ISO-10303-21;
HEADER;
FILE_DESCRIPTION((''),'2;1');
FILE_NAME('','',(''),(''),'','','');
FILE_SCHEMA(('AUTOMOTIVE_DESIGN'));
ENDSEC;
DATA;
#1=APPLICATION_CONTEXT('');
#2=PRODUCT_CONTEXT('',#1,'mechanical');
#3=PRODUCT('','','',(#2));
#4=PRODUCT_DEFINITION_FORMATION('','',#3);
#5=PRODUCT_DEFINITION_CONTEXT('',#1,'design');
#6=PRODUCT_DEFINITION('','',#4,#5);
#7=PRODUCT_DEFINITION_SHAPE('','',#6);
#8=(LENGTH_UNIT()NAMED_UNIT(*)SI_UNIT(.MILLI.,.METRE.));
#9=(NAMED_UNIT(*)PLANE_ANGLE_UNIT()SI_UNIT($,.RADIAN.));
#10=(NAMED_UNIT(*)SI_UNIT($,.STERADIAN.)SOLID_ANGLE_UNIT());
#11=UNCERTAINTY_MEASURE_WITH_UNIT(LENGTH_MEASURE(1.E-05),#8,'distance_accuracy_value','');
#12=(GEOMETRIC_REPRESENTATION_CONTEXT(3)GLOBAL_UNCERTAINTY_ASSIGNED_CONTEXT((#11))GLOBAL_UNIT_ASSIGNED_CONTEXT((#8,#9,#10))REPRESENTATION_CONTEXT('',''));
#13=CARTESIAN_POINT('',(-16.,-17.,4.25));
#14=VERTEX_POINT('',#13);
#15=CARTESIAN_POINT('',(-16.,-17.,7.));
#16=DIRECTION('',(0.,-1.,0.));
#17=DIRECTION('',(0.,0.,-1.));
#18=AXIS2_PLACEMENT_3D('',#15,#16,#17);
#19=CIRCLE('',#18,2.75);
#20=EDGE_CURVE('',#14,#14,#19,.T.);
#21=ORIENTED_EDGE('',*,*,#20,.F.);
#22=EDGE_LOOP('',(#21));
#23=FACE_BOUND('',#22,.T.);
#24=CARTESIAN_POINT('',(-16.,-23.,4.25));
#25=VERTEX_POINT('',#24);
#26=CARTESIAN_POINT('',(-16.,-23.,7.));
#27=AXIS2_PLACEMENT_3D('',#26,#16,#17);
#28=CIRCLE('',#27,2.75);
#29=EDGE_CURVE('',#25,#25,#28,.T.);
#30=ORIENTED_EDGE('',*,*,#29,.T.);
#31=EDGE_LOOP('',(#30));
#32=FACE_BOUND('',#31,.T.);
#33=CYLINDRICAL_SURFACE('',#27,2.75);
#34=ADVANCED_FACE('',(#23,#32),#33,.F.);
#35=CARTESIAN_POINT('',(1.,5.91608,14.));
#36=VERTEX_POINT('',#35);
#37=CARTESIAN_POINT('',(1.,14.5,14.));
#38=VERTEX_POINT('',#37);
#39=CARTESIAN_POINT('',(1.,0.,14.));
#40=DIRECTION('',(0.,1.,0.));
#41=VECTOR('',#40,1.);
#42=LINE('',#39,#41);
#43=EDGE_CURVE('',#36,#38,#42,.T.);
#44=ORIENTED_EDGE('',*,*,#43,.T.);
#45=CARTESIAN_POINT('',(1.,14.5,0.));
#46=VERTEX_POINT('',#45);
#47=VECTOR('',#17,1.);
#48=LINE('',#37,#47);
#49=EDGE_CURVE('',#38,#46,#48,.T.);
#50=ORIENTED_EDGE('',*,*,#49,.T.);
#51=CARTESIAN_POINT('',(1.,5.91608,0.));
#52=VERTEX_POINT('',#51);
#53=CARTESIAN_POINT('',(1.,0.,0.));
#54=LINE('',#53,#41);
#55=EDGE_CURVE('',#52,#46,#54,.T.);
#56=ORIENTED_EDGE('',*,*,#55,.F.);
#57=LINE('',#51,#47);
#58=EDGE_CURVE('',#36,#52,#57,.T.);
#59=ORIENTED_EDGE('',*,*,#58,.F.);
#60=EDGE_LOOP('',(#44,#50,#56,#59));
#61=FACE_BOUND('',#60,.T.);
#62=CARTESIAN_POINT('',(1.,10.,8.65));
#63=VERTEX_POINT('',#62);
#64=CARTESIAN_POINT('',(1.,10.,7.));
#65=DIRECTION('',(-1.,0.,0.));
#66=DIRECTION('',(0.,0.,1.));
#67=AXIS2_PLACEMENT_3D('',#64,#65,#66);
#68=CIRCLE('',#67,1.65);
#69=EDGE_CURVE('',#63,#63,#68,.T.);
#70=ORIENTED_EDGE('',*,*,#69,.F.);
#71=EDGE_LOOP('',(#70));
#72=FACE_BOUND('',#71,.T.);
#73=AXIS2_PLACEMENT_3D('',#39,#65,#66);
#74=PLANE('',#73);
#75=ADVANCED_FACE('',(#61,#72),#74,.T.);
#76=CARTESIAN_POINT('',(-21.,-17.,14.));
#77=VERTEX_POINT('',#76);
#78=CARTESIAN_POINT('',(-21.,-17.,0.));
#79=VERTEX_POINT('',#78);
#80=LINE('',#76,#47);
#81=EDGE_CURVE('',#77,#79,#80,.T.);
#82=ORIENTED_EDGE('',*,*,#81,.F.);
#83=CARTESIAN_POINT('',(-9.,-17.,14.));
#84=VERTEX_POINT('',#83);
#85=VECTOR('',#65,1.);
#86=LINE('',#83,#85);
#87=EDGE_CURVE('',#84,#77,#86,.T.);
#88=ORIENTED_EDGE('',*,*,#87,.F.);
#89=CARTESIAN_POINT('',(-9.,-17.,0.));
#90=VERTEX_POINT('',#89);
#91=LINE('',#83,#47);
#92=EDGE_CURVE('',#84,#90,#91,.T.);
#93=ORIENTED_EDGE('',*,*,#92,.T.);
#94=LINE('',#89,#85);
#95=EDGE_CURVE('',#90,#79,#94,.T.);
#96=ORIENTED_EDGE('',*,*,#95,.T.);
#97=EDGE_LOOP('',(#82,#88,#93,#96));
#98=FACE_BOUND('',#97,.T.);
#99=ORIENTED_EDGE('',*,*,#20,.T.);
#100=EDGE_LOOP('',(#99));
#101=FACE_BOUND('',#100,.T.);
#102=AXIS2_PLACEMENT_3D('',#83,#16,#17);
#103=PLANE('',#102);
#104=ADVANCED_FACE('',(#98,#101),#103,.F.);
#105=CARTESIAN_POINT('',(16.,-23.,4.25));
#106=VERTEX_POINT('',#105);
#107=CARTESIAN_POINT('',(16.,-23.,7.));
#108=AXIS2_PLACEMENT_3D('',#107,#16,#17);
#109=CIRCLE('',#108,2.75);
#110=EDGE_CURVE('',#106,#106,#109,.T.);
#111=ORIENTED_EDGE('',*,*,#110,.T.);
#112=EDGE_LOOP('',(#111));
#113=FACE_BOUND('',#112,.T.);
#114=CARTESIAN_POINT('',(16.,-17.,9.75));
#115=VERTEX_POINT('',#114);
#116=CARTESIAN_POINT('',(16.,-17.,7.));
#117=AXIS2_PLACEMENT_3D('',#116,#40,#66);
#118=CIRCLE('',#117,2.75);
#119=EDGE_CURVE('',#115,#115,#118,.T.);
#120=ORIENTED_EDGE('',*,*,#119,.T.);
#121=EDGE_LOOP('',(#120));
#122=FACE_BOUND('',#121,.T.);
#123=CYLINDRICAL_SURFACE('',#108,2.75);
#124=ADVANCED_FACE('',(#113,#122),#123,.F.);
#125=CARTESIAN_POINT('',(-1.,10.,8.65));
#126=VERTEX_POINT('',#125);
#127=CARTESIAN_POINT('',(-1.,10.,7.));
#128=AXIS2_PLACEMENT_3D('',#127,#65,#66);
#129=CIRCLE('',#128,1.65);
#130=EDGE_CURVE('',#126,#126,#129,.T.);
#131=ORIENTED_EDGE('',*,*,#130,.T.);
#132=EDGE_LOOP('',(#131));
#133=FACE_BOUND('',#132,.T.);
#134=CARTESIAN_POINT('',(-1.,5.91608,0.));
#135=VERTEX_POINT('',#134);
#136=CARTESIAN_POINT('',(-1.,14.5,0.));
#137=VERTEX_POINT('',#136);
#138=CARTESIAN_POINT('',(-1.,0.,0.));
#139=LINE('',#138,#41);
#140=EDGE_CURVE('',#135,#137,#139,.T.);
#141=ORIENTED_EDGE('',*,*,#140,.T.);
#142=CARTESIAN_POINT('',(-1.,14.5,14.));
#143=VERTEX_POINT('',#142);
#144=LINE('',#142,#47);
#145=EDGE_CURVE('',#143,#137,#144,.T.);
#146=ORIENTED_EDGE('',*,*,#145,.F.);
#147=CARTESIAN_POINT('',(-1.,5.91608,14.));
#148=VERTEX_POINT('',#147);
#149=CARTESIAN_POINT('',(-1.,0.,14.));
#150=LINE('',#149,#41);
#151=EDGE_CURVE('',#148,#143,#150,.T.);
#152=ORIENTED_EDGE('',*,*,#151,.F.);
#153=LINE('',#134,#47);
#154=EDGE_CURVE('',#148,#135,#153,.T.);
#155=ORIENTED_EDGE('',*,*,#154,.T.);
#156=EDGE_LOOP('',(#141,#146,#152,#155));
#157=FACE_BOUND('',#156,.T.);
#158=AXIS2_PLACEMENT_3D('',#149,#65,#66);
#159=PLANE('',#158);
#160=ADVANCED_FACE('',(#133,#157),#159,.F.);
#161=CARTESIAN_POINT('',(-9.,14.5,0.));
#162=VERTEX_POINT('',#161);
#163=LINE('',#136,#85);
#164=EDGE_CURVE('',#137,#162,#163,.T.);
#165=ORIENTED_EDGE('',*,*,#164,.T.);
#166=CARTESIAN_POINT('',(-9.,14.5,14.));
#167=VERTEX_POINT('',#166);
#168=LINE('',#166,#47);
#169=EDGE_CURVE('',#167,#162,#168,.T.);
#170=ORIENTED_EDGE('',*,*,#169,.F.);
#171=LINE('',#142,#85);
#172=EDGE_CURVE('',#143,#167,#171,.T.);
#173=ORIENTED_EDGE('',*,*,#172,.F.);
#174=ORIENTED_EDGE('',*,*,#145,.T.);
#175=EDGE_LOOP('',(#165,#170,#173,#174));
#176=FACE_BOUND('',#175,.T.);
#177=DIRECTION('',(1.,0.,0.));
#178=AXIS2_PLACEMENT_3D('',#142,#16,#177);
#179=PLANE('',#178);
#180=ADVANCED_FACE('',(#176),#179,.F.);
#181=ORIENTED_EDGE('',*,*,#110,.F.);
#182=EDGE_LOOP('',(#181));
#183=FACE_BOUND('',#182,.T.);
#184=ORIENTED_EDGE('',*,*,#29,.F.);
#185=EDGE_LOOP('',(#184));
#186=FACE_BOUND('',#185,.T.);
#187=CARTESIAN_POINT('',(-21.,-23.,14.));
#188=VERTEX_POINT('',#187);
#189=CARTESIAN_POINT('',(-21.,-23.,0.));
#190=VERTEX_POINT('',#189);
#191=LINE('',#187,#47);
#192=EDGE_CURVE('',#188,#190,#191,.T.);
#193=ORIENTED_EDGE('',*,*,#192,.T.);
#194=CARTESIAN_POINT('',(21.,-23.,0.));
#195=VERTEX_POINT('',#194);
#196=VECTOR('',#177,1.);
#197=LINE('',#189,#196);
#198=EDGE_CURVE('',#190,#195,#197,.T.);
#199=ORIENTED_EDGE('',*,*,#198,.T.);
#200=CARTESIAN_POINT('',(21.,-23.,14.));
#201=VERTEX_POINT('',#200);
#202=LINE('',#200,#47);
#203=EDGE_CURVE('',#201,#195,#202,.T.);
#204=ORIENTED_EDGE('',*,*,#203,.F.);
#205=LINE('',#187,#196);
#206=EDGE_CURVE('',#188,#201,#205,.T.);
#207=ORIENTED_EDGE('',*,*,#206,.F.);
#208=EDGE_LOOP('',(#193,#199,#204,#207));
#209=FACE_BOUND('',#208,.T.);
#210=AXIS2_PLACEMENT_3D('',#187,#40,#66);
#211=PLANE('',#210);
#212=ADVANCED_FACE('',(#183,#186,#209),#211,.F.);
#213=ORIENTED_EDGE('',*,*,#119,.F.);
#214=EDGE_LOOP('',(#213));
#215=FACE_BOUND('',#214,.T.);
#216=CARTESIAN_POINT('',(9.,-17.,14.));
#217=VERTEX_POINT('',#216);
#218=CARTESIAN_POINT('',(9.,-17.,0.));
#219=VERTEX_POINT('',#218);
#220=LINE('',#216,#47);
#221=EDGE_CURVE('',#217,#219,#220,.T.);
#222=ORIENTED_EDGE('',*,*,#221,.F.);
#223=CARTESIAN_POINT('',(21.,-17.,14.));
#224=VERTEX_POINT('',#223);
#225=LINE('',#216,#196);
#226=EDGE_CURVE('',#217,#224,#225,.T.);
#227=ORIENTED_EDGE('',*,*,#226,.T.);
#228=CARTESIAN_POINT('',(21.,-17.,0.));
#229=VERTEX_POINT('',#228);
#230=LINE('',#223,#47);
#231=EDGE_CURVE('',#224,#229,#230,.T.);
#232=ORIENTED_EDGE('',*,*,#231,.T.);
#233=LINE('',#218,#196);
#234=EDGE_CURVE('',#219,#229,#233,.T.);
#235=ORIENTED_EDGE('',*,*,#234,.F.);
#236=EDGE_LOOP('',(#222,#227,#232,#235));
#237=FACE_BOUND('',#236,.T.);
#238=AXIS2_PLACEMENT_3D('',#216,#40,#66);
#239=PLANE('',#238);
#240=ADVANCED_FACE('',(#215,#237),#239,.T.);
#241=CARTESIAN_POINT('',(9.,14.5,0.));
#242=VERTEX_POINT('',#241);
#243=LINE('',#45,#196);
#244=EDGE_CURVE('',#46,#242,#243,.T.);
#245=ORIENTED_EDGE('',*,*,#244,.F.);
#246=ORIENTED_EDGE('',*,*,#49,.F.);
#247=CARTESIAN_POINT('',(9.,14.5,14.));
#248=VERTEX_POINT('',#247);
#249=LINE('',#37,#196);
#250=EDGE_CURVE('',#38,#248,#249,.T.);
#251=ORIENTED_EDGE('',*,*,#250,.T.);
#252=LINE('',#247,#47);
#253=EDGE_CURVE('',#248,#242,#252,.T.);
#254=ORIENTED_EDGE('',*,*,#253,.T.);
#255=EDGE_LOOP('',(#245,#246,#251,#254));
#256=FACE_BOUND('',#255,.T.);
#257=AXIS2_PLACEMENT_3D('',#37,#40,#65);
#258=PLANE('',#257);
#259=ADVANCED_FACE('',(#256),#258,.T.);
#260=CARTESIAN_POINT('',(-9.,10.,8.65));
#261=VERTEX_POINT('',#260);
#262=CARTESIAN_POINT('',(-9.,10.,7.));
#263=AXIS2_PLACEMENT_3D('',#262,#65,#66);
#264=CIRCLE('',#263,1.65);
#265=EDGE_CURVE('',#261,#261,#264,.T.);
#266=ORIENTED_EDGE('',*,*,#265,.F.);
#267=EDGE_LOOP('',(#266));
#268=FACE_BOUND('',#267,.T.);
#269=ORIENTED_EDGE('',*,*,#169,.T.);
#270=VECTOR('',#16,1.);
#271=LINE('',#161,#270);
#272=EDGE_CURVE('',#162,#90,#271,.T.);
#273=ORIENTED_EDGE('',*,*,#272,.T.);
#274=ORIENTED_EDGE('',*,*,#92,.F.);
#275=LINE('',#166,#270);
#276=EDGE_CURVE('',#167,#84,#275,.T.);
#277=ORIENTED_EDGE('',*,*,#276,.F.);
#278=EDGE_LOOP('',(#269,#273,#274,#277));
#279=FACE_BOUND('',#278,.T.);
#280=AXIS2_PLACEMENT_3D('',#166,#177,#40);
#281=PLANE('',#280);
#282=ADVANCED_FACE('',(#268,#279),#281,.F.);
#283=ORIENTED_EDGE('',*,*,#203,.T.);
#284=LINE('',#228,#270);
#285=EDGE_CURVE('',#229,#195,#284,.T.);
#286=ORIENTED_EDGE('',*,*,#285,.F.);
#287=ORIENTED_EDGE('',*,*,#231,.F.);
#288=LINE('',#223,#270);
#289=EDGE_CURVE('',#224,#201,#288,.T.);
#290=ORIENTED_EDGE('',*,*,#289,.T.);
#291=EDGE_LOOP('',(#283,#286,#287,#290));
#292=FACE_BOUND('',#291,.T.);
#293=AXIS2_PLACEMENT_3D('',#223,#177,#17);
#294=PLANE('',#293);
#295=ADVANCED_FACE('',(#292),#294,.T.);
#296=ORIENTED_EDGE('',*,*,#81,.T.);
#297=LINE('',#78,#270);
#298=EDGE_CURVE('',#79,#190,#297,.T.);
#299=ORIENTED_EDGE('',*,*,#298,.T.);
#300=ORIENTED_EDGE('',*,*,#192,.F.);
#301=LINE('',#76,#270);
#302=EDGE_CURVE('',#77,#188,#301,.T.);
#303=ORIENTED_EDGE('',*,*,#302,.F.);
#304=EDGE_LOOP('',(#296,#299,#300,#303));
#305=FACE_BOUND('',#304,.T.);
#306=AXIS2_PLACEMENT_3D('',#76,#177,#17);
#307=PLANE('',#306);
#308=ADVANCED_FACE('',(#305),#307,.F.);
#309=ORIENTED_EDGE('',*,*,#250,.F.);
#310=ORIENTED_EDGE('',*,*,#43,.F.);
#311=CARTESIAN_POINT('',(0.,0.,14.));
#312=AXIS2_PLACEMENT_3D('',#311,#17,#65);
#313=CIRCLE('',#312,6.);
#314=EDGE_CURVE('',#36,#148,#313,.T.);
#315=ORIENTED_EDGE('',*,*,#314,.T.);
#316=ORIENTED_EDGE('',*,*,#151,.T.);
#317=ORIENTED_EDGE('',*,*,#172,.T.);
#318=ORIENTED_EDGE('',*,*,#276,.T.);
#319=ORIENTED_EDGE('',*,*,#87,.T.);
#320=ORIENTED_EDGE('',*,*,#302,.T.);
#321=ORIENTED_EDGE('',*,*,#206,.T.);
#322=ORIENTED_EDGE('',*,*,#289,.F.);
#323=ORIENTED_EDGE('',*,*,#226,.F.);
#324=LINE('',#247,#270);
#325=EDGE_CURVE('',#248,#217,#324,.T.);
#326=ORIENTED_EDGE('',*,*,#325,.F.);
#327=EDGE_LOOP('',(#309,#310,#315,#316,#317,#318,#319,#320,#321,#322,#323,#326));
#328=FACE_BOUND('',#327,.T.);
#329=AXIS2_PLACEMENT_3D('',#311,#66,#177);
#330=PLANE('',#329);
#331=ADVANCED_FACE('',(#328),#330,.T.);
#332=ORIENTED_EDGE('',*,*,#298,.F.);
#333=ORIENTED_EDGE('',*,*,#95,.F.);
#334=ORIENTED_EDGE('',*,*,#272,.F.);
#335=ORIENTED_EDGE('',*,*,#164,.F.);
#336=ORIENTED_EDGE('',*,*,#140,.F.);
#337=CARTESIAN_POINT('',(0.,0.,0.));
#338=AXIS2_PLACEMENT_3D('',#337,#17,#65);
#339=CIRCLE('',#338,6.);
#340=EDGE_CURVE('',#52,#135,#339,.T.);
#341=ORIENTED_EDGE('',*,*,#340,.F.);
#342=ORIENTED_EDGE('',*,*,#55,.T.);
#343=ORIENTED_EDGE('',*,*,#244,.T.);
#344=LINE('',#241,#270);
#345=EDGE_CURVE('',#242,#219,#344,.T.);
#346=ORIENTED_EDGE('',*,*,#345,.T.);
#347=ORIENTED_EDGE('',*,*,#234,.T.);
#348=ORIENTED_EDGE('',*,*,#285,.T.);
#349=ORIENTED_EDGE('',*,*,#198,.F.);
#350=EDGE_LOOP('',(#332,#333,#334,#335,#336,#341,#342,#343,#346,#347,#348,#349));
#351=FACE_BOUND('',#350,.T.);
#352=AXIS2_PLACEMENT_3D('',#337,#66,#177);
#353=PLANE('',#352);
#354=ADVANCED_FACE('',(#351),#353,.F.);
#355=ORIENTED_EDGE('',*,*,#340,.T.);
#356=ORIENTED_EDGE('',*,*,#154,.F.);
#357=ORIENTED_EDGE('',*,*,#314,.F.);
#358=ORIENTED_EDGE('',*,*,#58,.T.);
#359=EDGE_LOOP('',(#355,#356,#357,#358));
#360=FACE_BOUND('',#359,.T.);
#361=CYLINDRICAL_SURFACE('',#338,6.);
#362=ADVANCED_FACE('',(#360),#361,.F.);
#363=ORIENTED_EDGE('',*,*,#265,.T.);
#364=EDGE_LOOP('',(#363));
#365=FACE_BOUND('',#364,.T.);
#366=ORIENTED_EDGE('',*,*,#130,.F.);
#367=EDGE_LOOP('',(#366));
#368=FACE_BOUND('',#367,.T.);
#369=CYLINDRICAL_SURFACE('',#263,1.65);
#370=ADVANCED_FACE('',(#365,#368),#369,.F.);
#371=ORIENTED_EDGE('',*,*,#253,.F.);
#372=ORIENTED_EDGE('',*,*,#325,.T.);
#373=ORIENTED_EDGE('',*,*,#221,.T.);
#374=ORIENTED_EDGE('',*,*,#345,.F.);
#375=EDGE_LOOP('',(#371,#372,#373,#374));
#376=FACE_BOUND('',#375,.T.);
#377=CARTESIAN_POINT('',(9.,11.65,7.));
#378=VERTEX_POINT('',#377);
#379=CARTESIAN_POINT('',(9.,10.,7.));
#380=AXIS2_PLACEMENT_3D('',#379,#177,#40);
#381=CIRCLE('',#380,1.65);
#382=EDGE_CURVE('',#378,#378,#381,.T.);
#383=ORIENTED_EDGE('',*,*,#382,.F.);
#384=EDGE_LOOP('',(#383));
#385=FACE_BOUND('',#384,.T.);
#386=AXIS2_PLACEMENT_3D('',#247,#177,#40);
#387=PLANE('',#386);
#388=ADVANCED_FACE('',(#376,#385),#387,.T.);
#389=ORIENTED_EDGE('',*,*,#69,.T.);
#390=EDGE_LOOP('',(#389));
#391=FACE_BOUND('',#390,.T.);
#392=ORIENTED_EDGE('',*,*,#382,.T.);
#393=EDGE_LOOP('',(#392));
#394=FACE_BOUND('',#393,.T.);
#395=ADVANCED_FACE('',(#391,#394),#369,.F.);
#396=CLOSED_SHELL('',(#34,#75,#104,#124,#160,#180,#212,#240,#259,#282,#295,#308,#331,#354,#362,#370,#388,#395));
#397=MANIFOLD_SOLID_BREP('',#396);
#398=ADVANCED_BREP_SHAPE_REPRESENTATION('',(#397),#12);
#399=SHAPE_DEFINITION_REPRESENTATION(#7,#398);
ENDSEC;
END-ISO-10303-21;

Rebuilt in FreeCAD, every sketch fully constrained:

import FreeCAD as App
import Part
import Sketcher
Q = App.Units.Quantity

doc = App.newDocument("Part")
body = doc.addObject("PartDesign::Body", "Body")

# Sketch on XY plane
sketch1 = doc.addObject("Sketcher::SketchObject", "Sketch")
body.addObject(sketch1)
sketch1.AttachmentSupport = (doc.XY_Plane, [""])
sketch1.MapMode = "FlatFace"
sketch1.addGeometry([
    Part.LineSegment(App.Vector(-1, 0, 0), App.Vector(-1, 14.5, 0)),  # 0
    Part.LineSegment(App.Vector(-1, 14.5, 0), App.Vector(-9, 14.5, 0)),  # 1
    Part.LineSegment(App.Vector(-9, 14.5, 0), App.Vector(-9, -17, 0)),  # 2
    Part.LineSegment(App.Vector(-9, -17, 0), App.Vector(-21, -17, 0)),  # 3
    Part.LineSegment(App.Vector(-21, -17, 0), App.Vector(-21, -23, 0)),  # 4
    Part.LineSegment(App.Vector(-21, -23, 0), App.Vector(0, -23, 0)),  # 5
    Part.LineSegment(App.Vector(0, -23, 0), App.Vector(0, 0, 0)),  # 6
    Part.LineSegment(App.Vector(0, 0, 0), App.Vector(-1, 0, 0)),  # 7
], False)
sketch1.addConstraint([
    Sketcher.Constraint("Coincident", 0, 2, 1, 1),
    Sketcher.Constraint("Coincident", 1, 2, 2, 1),
    Sketcher.Constraint("Coincident", 2, 2, 3, 1),
    Sketcher.Constraint("Coincident", 3, 2, 4, 1),
    Sketcher.Constraint("Coincident", 4, 2, 5, 1),
    Sketcher.Constraint("Coincident", 5, 2, 6, 1),
    Sketcher.Constraint("Coincident", 6, 2, 7, 1),
    Sketcher.Constraint("Coincident", 7, 2, 0, 1),
    Sketcher.Constraint("Vertical", 0),
    Sketcher.Constraint("Horizontal", 1),
    Sketcher.Constraint("Vertical", 2),
    Sketcher.Constraint("Horizontal", 3),
    Sketcher.Constraint("Vertical", 4),
    Sketcher.Constraint("Horizontal", 5),
    Sketcher.Constraint("Vertical", 6),
    Sketcher.Constraint("Horizontal", 7),
    Sketcher.Constraint("Coincident", 6, 2, -1, 1),
    Sketcher.Constraint("DistanceX", 1, 2, 1, 1, Q("8 mm")),
    Sketcher.Constraint("DistanceX", 3, 2, 3, 1, Q("12 mm")),
    Sketcher.Constraint("DistanceX", 5, 1, 5, 2, Q("21 mm")),
    Sketcher.Constraint("DistanceY", 4, 2, 4, 1, Q("6 mm")),
    Sketcher.Constraint("DistanceY", 6, 1, 6, 2, Q("23 mm")),
    Sketcher.Constraint("DistanceY", 0, 1, 0, 2, Q("14.5 mm")),
])
pad1 = doc.addObject("PartDesign::Pad", "Pad")
body.addObject(pad1)
pad1.Profile = sketch1
pad1.Length = 14
doc.recompute()

mirrored = doc.addObject("PartDesign::Mirrored", "Mirrored")
body.addObject(mirrored)
mirrored.Originals = [pad1]
mirrored.MirrorPlane = (doc.YZ_Plane, [""])
body.Tip = mirrored

# Sketch on YZ plane
sketch2 = doc.addObject("Sketcher::SketchObject", "Sketch001")
body.addObject(sketch2)
sketch2.AttachmentSupport = (doc.YZ_Plane, [""])
sketch2.MapMode = "FlatFace"
sketch2.AttachmentOffset = App.Placement(App.Vector(0, 0, -9), App.Rotation())
sketch2.addGeometry(Part.Circle(App.Vector(10, 7, 0), App.Vector(0, 0, 1), 1.6), False)
sketch2.addConstraint([
    Sketcher.Constraint("Diameter", 0, Q("3.3 mm")),
    Sketcher.Constraint("DistanceX", -1, 1, 0, 3, Q("10 mm")),
    Sketcher.Constraint("DistanceY", -1, 1, 0, 3, Q("7 mm")),
])
doc.recompute()
hole = doc.addObject("PartDesign::Hole", "Hole")
body.addObject(hole)
hole.Profile = sketch2
hole.ThreadType = "None"
hole.Diameter = 3.3
hole.DepthType = "ThroughAll"
hole.Reversed = True

# Sketch on XY plane
sketch3 = doc.addObject("Sketcher::SketchObject", "Sketch002")
body.addObject(sketch3)
sketch3.AttachmentSupport = (doc.XY_Plane, [""])
sketch3.MapMode = "FlatFace"
sketch3.addGeometry(Part.Circle(App.Vector(0, 0, 0), App.Vector(0, 0, 1), 6), False)
sketch3.addConstraint([
    Sketcher.Constraint("Coincident", 0, 3, -1, 1),
    Sketcher.Constraint("Diameter", 0, Q("12 mm")),
])
doc.recompute()
hole2 = doc.addObject("PartDesign::Hole", "Hole001")
body.addObject(hole2)
hole2.Profile = sketch3
hole2.ThreadType = "None"
hole2.Diameter = 12
hole2.DepthType = "ThroughAll"
hole2.Reversed = True

# Sketch on XZ plane
sketch4 = doc.addObject("Sketcher::SketchObject", "Sketch003")
body.addObject(sketch4)
sketch4.AttachmentSupport = (doc.XZ_Plane, [""])
sketch4.MapMode = "FlatFace"
sketch4.AttachmentOffset = App.Placement(App.Vector(0, 0, 23), App.Rotation())
sketch4.addGeometry([
    Part.Circle(App.Vector(16, 7, 0), App.Vector(0, 0, 1), 2.8),
    Part.Circle(App.Vector(-16, 7, 0), App.Vector(0, 0, 1), 2.8),
], False)
sketch4.addConstraint([
    Sketcher.Constraint("Equal", 0, 1),
    Sketcher.Constraint("Symmetric", 0, 3, 1, 3, -2),
    Sketcher.Constraint("Diameter", 0, Q("5.5 mm")),
    Sketcher.Constraint("DistanceX", -1, 1, 0, 3, Q("16 mm")),
    Sketcher.Constraint("DistanceY", -1, 1, 0, 3, Q("7 mm")),
])
doc.recompute()
hole3 = doc.addObject("PartDesign::Hole", "Hole002")
body.addObject(hole3)
hole3.Profile = sketch4
hole3.ThreadType = "None"
hole3.Diameter = 5.5
hole3.DepthType = "ThroughAll"

doc.recompute()
